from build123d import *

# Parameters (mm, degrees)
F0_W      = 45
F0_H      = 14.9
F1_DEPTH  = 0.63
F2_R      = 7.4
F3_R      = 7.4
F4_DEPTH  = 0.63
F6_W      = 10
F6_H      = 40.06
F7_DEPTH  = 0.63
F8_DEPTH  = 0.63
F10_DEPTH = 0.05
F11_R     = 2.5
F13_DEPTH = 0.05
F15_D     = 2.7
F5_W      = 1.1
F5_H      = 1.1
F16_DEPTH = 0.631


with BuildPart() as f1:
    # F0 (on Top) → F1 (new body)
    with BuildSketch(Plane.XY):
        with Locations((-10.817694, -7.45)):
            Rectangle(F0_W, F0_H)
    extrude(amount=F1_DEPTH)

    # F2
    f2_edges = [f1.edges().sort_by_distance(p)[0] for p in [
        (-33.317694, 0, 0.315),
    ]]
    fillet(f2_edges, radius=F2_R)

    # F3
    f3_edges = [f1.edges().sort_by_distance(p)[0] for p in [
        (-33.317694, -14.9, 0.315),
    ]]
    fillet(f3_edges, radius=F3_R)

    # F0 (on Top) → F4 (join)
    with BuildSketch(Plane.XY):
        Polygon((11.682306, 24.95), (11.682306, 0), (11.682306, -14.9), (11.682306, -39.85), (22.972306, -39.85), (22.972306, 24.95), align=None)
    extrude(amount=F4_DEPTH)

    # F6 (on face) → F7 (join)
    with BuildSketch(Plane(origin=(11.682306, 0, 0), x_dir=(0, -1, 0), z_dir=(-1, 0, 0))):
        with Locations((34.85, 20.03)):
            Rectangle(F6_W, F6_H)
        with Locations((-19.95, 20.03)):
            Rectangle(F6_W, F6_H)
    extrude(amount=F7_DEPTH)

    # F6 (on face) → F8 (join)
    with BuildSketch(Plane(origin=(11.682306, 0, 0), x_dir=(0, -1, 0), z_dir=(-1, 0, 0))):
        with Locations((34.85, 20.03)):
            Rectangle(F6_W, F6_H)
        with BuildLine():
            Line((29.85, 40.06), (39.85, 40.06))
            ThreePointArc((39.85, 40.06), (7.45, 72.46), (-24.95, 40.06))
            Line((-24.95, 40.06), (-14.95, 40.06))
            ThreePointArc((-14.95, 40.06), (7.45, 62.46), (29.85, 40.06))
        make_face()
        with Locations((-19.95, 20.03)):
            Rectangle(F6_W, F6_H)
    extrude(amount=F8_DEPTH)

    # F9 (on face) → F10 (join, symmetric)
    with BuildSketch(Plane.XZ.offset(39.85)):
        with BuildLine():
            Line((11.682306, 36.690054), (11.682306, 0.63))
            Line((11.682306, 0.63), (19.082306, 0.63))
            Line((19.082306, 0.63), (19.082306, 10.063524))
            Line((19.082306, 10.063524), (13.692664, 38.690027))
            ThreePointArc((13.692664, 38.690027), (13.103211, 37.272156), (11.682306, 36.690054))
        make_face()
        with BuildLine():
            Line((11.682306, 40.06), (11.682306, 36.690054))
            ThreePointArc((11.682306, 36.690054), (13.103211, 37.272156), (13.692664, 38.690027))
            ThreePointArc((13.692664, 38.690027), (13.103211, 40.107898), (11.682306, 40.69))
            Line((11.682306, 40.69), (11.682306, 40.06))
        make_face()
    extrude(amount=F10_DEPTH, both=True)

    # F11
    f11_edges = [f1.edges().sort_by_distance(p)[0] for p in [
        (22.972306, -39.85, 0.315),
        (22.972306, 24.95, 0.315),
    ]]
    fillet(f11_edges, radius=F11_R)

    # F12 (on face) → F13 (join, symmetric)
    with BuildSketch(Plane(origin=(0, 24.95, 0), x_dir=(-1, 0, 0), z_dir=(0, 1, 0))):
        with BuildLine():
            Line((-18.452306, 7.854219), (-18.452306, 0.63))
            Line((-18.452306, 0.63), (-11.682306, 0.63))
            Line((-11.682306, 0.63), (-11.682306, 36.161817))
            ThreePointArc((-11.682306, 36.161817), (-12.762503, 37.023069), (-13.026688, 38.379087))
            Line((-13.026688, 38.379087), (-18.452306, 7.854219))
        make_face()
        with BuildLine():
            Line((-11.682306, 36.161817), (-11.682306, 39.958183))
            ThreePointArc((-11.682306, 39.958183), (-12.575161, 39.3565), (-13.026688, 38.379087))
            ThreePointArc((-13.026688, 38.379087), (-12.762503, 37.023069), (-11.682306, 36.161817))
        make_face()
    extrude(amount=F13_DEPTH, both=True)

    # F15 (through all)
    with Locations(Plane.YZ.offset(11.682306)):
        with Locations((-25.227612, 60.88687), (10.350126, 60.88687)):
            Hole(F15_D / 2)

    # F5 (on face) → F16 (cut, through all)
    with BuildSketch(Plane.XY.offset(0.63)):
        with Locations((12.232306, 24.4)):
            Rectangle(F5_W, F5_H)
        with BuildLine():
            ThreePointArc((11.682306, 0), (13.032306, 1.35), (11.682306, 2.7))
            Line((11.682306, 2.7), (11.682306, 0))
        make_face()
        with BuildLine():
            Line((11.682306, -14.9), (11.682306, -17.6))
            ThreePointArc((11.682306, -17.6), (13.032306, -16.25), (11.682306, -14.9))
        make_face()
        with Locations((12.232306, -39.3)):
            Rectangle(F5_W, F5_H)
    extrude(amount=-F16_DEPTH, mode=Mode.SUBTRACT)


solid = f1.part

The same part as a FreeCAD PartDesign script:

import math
import FreeCAD as App
import Part
import Sketcher

V = App.Vector


def edges_at(feature, points):
    """Names of the edges that pass closest to the given points."""
    edges = feature.Shape.Edges
    near = lambda p: min(range(len(edges)), key=lambda i: edges[i].distToShape(Part.Vertex(*p))[0])
    return sorted({f"Edge{near(p) + 1}" for p in points})

doc = App.newDocument("Part")
body = doc.addObject("PartDesign::Body", "Body")

sketch1 = body.newObject("Sketcher::SketchObject", "Sketch")
sketch1.AttachmentSupport = (doc.getObject("XY_Plane"), [""])
sketch1.MapMode = "FlatFace"
sketch1.addGeometry(Part.LineSegment(V(-33, 0, 0), V(-33, -15, 0)), False)
sketch1.addGeometry(Part.LineSegment(V(-33, -15, 0), V(12, -15, 0)), False)
sketch1.addGeometry(Part.LineSegment(V(12, -15, 0), V(12, 0, 0)), False)
sketch1.addGeometry(Part.LineSegment(V(12, 0, 0), V(-33, 0, 0)), False)
sketch1.addConstraint(Sketcher.Constraint("Coincident", 0, 2, 1, 1))
sketch1.addConstraint(Sketcher.Constraint("Coincident", 1, 2, 2, 1))
sketch1.addConstraint(Sketcher.Constraint("Coincident", 2, 2, 3, 1))
sketch1.addConstraint(Sketcher.Constraint("Coincident", 3, 2, 0, 1))
sketch1.addConstraint(Sketcher.Constraint("Vertical", 0))
sketch1.addConstraint(Sketcher.Constraint("Horizontal", 1))
sketch1.addConstraint(Sketcher.Constraint("Vertical", 2))
sketch1.addConstraint(Sketcher.Constraint("Horizontal", 3))
sketch1.addConstraint(Sketcher.Constraint("PointOnObject", 2, 2, -1))
sketch1.addConstraint(Sketcher.Constraint("DistanceX", 1, 1, 1, 2, 45.0))
sketch1.addConstraint(Sketcher.Constraint("DistanceY", 0, 2, 0, 1, 14.9))
sketch1.addConstraint(Sketcher.Constraint("DistanceX", 0, 2, -1, 1, 33.317694))
pad1 = body.newObject("PartDesign::Pad", "Pad")
pad1.Profile = sketch1
pad1.Length = 0.63
doc.recompute()

fillet = body.newObject("PartDesign::Fillet", "Fillet")
fillet.Base = (pad1, edges_at(pad1, [(-33.318, 0, 0.315)]))
fillet.Radius = 7.4
doc.recompute()

fillet2 = body.newObject("PartDesign::Fillet", "Fillet001")
fillet2.Base = (fillet, edges_at(fillet, [(-33.318, -14.9, 0.315)]))
fillet2.Radius = 7.4

sketch2 = body.newObject("Sketcher::SketchObject", "Sketch001")
sketch2.AttachmentSupport = (doc.getObject("XY_Plane"), [""])
sketch2.MapMode = "FlatFace"
sketch2.addGeometry(Part.LineSegment(V(12, 25, 0), V(12, -40, 0)), False)
sketch2.addGeometry(Part.LineSegment(V(12, -40, 0), V(23, -40, 0)), False)
sketch2.addGeometry(Part.LineSegment(V(23, -40, 0), V(23, 25, 0)), False)
sketch2.addGeometry(Part.LineSegment(V(23, 25, 0), V(12, 25, 0)), False)
sketch2.addConstraint(Sketcher.Constraint("Coincident", 0, 2, 1, 1))
sketch2.addConstraint(Sketcher.Constraint("Coincident", 1, 2, 2, 1))
sketch2.addConstraint(Sketcher.Constraint("Coincident", 2, 2, 3, 1))
sketch2.addConstraint(Sketcher.Constraint("Coincident", 3, 2, 0, 1))
sketch2.addConstraint(Sketcher.Constraint("Vertical", 0))
sketch2.addConstraint(Sketcher.Constraint("Horizontal", 1))
sketch2.addConstraint(Sketcher.Constraint("Vertical", 2))
sketch2.addConstraint(Sketcher.Constraint("Horizontal", 3))
sketch2.addConstraint(Sketcher.Constraint("DistanceY", 0, 2, 0, 1, 64.8))
sketch2.addConstraint(Sketcher.Constraint("DistanceX", 1, 1, 1, 2, 11.29))
sketch2.addConstraint(Sketcher.Constraint("DistanceY", 0, 2, -1, 1, 39.85))
sketch2.addConstraint(Sketcher.Constraint("DistanceX", -1, 1, 0, 2, 11.682306))
pad2 = body.newObject("PartDesign::Pad", "Pad001")
pad2.Profile = sketch2
pad2.Length = 0.63

sketch3 = body.newObject("Sketcher::SketchObject", "Sketch002")
sketch3.AttachmentSupport = (doc.getObject("YZ_Plane"), [""])
sketch3.MapMode = "FlatFace"
sketch3.AttachmentOffset = App.Placement(V(0, 0, 11.682306), App.Rotation())
sketch3.addGeometry(Part.LineSegment(V(-30, 40, 0), V(-30, 0, 0)), False)
sketch3.addGeometry(Part.LineSegment(V(-30, 0, 0), V(-40, 0, 0)), False)
sketch3.addGeometry(Part.LineSegment(V(-40, 0, 0), V(-40, 40, 0)), False)
sketch3.addGeometry(Part.LineSegment(V(-40, 40, 0), V(-30, 40, 0)), False)
sketch3.addGeometry(Part.LineSegment(V(25, 40, 0), V(25, 0, 0)), False)
sketch3.addGeometry(Part.LineSegment(V(25, 0, 0), V(15, 0, 0)), False)
sketch3.addGeometry(Part.LineSegment(V(15, 0, 0), V(15, 40, 0)), False)
sketch3.addGeometry(Part.LineSegment(V(15, 40, 0), V(25, 40, 0)), False)
sketch3.addConstraint(Sketcher.Constraint("Coincident", 0, 2, 1, 1))
sketch3.addConstraint(Sketcher.Constraint("Coincident", 1, 2, 2, 1))
sketch3.addConstraint(Sketcher.Constraint("Coincident", 2, 2, 3, 1))
sketch3.addConstraint(Sketcher.Constraint("Coincident", 3, 2, 0, 1))
sketch3.addConstraint(Sketcher.Constraint("Coincident", 4, 2, 5, 1))
sketch3.addConstraint(Sketcher.Constraint("Coincident", 5, 2, 6, 1))
sketch3.addConstraint(Sketcher.Constraint("Coincident", 6, 2, 7, 1))
sketch3.addConstraint(Sketcher.Constraint("Coincident", 7, 2, 4, 1))
sketch3.addConstraint(Sketcher.Constraint("Vertical", 0))
sketch3.addConstraint(Sketcher.Constraint("Horizontal", 1))
sketch3.addConstraint(Sketcher.Constraint("Vertical", 2))
sketch3.addConstraint(Sketcher.Constraint("Horizontal", 3))
sketch3.addConstraint(Sketcher.Constraint("Vertical", 4))
sketch3.addConstraint(Sketcher.Constraint("Horizontal", 5))
sketch3.addConstraint(Sketcher.Constraint("Vertical", 6))
sketch3.addConstraint(Sketcher.Constraint("Horizontal", 7))
sketch3.addConstraint(Sketcher.Constraint("PointOnObject", 0, 2, -1))
sketch3.addConstraint(Sketcher.Constraint("PointOnObject", 4, 2, -1))
sketch3.addConstraint(Sketcher.Constraint("Horizontal", 3, 2, 6, 2))
sketch3.addConstraint(Sketcher.Constraint("Equal", 3, 5))
sketch3.addConstraint(Sketcher.Constraint("DistanceX", 1, 2, 1, 1, 10.0))
sketch3.addConstraint(Sketcher.Constraint("DistanceY", 0, 2, 0, 1, 40.06))
sketch3.addConstraint(Sketcher.Constraint("DistanceX", 0, 2, 4, 2, 54.8))
sketch3.addConstraint(Sketcher.Constraint("DistanceX", 0, 2, -1, 1, 29.85))
pad3 = body.newObject("PartDesign::Pad", "Pad002")
pad3.Profile = sketch3
pad3.Length = 0.63
pad3.Reversed = True

sketch4 = body.newObject("Sketcher::SketchObject", "Sketch003")
sketch4.AttachmentSupport = (doc.getObject("YZ_Plane"), [""])
sketch4.MapMode = "FlatFace"
sketch4.AttachmentOffset = App.Placement(V(0, 0, 11.682306), App.Rotation())
sketch4.addGeometry(Part.LineSegment(V(-30, 40, 0), V(-30, 0, 0)), False)
sketch4.addGeometry(Part.LineSegment(V(-30, 0, 0), V(-40, 0, 0)), False)
sketch4.addGeometry(Part.LineSegment(V(-40, 0, 0), V(-40, 40, 0)), False)
sketch4.addGeometry(Part.ArcOfCircle(Part.Circle(V(-7, 40, 0), V(0, 0, 1), 32), math.radians(0), math.radians(180)), False)
sketch4.addGeometry(Part.LineSegment(V(25, 40, 0), V(25, 0, 0)), False)
sketch4.addGeometry(Part.LineSegment(V(25, 0, 0), V(15, 0, 0)), False)
sketch4.addGeometry(Part.LineSegment(V(15, 0, 0), V(15, 40, 0)), False)
sketch4.addGeometry(Part.ArcOfCircle(Part.Circle(V(-7, 40, 0), V(0, 0, 1), 22), math.radians(0), math.radians(180)), False)
sketch4.addConstraint(Sketcher.Constraint("Coincident", 0, 2, 1, 1))
sketch4.addConstraint(Sketcher.Constraint("Coincident", 1, 2, 2, 1))
sketch4.addConstraint(Sketcher.Constraint("Tangent", 2, 2, 3, 2))
sketch4.addConstraint(Sketcher.Constraint("Tangent", 3, 1, 4, 1))
sketch4.addConstraint(Sketcher.Constraint("Coincident", 4, 2, 5, 1))
sketch4.addConstraint(Sketcher.Constraint("Coincident", 5, 2, 6, 1))
sketch4.addConstraint(Sketcher.Constraint("Tangent", 6, 2, 7, 1))
sketch4.addConstraint(Sketcher.Constraint("Tangent", 7, 2, 0, 1))
sketch4.addConstraint(Sketcher.Constraint("Vertical", 0))
sketch4.addConstraint(Sketcher.Constraint("Horizontal", 1))
sketch4.addConstraint(Sketcher.Constraint("Vertical", 2))
sketch4.addConstraint(Sketcher.Constraint("Vertical", 4))
sketch4.addConstraint(Sketcher.Constraint("Horizontal", 5))
sketch4.addConstraint(Sketcher.Constraint("Vertical", 6))
sketch4.addConstraint(Sketcher.Constraint("Coincident", 7, 3, 3, 3))
sketch4.addConstraint(Sketcher.Constraint("PointOnObject", 0, 2, -1))
sketch4.addConstraint(Sketcher.Constraint("PointOnObject", 4, 2, -1))
sketch4.addConstraint(Sketcher.Constraint("Radius", 3, 32.4))
sketch4.addConstraint(Sketcher.Constraint("Radius", 7, 22.4))
sketch4.addConstraint(Sketcher.Constraint("DistanceY", 0, 2, 0, 1, 40.06))
sketch4.addConstraint(Sketcher.Constraint("DistanceX", 3, 3, -1, 1, 7.45))
pad4 = body.newObject("PartDesign::Pad", "Pad003")
pad4.Profile = sketch4
pad4.Length = 0.63
pad4.Reversed = True

sketch5 = body.newObject("Sketcher::SketchObject", "Sketch004")
sketch5.AttachmentSupport = (doc.getObject("XZ_Plane"), [""])
sketch5.MapMode = "FlatFace"
sketch5.AttachmentOffset = App.Placement(V(0, 0, 39.85), App.Rotation())
sketch5.addGeometry(Part.LineSegment(V(11.7, 0.6, 0), V(19.1, 0.6, 0)), False)
sketch5.addGeometry(Part.LineSegment(V(19.1, 0.6, 0), V(19.1, 10.1, 0)), False)
sketch5.addGeometry(Part.LineSegment(V(19.1, 10.1, 0), V(13.7, 38.7, 0)), False)
sketch5.addGeometry(Part.ArcOfCircle(Part.Circle(V(11.7, 38.7, 0), V(0, 0, 1), 2), math.radians(0), math.radians(90)), False)
sketch5.addGeometry(Part.LineSegment(V(11.7, 40.7, 0), V(11.7, 0.6, 0)), False)
sketch5.addConstraint(Sketcher.Constraint("Coincident", 0, 2, 1, 1))
sketch5.addConstraint(Sketcher.Constraint("Coincident", 1, 2, 2, 1))
sketch5.addConstraint(Sketcher.Constraint("Coincident", 2, 2, 3, 1))
sketch5.addConstraint(Sketcher.Constraint("Coincident", 3, 2, 4, 1))
sketch5.addConstraint(Sketcher.Constraint("Coincident", 4, 2, 0, 1))
sketch5.addConstraint(Sketcher.Constraint("Horizontal", 0))
sketch5.addConstraint(Sketcher.Constraint("Vertical", 1))
sketch5.addConstraint(Sketcher.Constraint("Vertical", 4))
sketch5.addConstraint(Sketcher.Constraint("Horizontal", 3, 3, 2, 2))
sketch5.addConstraint(Sketcher.Constraint("Radius", 3, 1.999999))
sketch5.addConstraint(Sketcher.Constraint("DistanceX", 0, 1, 0, 2, 7.4))
sketch5.addConstraint(Sketcher.Constraint("DistanceY", 4, 2, 4, 1, 40.06))
sketch5.addConstraint(Sketcher.Constraint("DistanceY", -1, 1, 0, 2, 0.63))
sketch5.addConstraint(Sketcher.Constraint("Distance", 2, 29.129451))
sketch5.addConstraint(Sketcher.Constraint("DistanceY", 1, 1, 1, 2, 9.433524))
sketch5.addConstraint(Sketcher.Constraint("DistanceX", -1, 1, 3, 3, 11.692665))
pad5 = body.newObject("PartDesign::Pad", "Pad004")
pad5.Profile = sketch5
pad5.Length = 0.1
pad5.Midplane = True
doc.recompute()

fillet3 = body.newObject("PartDesign::Fillet", "Fillet002")
fillet3.Base = (pad5, edges_at(pad5, [(22.972, -39.85, 0.315), (22.972, 24.95, 0.315)]))
fillet3.Radius = 2.5

sketch6 = body.newObject("Sketcher::SketchObject", "Sketch005")
sketch6.AttachmentSupport = (doc.getObject("XZ_Plane"), [""])
sketch6.MapMode = "FlatFace"
sketch6.AttachmentOffset = App.Placement(V(0, 0, -24.95), App.Rotation())
sketch6.addGeometry(Part.LineSegment(V(18.5, 7.9, 0), V(18.5, 0.6, 0)), False)
sketch6.addGeometry(Part.LineSegment(V(18.5, 0.6, 0), V(11.7, 0.6, 0)), False)
sketch6.addGeometry(Part.LineSegment(V(11.7, 0.6, 0), V(11.7, 40, 0)), False)
sketch6.addGeometry(Part.ArcOfCircle(Part.Circle(V(11.1, 38.1, 0), V(0, 0, 1), 2), math.radians(9), math.radians(72)), False)
sketch6.addGeometry(Part.LineSegment(V(13, 38.4, 0), V(18.5, 7.9, 0)), False)
sketch6.addConstraint(Sketcher.Constraint("Coincident", 0, 2, 1, 1))
sketch6.addConstraint(Sketcher.Constraint("Coincident", 1, 2, 2, 1))
sketch6.addConstraint(Sketcher.Constraint("Coincident", 2, 2, 3, 2))
sketch6.addConstraint(Sketcher.Constraint("Coincident", 3, 1, 4, 1))
sketch6.addConstraint(Sketcher.Constraint("Coincident", 4, 2, 0, 1))
sketch6.addConstraint(Sketcher.Constraint("Vertical", 0))
sketch6.addConstraint(Sketcher.Constraint("Horizontal", 1))
sketch6.addConstraint(Sketcher.Constraint("Vertical", 2))
sketch6.addConstraint(Sketcher.Constraint("Radius", 3, 2.0))
sketch6.addConstraint(Sketcher.Constraint("DistanceX", 1, 2, 1, 1, 6.77))
sketch6.addConstraint(Sketcher.Constraint("DistanceX", 3, 3, 0, 2, 7.4))
sketch6.addConstraint(Sketcher.Constraint("DistanceY", -1, 1, 3, 3, 38.059999))
sketch6.addConstraint(Sketcher.Constraint("DistanceY", -1, 1, 0, 2, 0.63))
sketch6.addConstraint(Sketcher.Constraint("DistanceY", 0, 2, 0, 1, 7.224219))
sketch6.addConstraint(Sketcher.Constraint("DistanceX", -1, 1, 3, 1, 13.026688))
sketch6.addConstraint(Sketcher.Constraint("DistanceX", 3, 3, 3, 1, 1.974382))
pad6 = body.newObject("PartDesign::Pad", "Pad005")
pad6.Profile = sketch6
pad6.Length = 0.1
pad6.Midplane = True

sketch7 = body.newObject("Sketcher::SketchObject", "Sketch006")
sketch7.AttachmentSupport = (doc.getObject("YZ_Plane"), [""])
sketch7.MapMode = "FlatFace"
sketch7.AttachmentOffset = App.Placement(V(0, 0, 11.682306), App.Rotation())
sketch7.addGeometry(Part.Circle(V(-25.2, 60.9, 0), V(0, 0, 1), 1.4), False)
sketch7.addGeometry(Part.Circle(V(10.4, 60.9, 0), V(0, 0, 1), 1.4), False)
sketch7.addConstraint(Sketcher.Constraint("Equal", 0, 1))
sketch7.addConstraint(Sketcher.Constraint("Horizontal", 0, 3, 1, 3))
sketch7.addConstraint(Sketcher.Constraint("Diameter", 0, 2.7))
sketch7.addConstraint(Sketcher.Constraint("DistanceY", -1, 1, 0, 3, 60.88687))
sketch7.addConstraint(Sketcher.Constraint("DistanceX", 0, 3, -1, 1, 25.227612))
sketch7.addConstraint(Sketcher.Constraint("DistanceX", -1, 1, 1, 3, 10.350126))
doc.recompute()
hole = body.newObject("PartDesign::Hole", "Hole")
hole.Profile = sketch7
hole.ThreadType = "None"
hole.Diameter = 2.7
hole.DepthType = "ThroughAll"

sketch8 = body.newObject("Sketcher::SketchObject", "Sketch007")
sketch8.AttachmentSupport = (doc.getObject("XY_Plane"), [""])
sketch8.MapMode = "FlatFace"
sketch8.AttachmentOffset = App.Placement(V(0, 0, 0.63), App.Rotation())
sketch8.addGeometry(Part.LineSegment(V(11.7, 24.9, 0), V(11.7, 23.9, 0)), False)
sketch8.addGeometry(Part.LineSegment(V(11.7, 23.9, 0), V(12.8, 23.9, 0)), False)
sketch8.addGeometry(Part.LineSegment(V(12.8, 23.9, 0), V(12.8, 24.9, 0)), False)
sketch8.addGeometry(Part.LineSegment(V(12.8, 24.9, 0), V(11.7, 24.9, 0)), False)
sketch8.addGeometry(Part.ArcOfCircle(Part.Circle(V(11.7, 1.4, 0), V(0, 0, 1), 1.4), math.radians(-90), math.radians(90)), False)
sketch8.addGeometry(Part.LineSegment(V(11.7, 2.7, 0), V(11.7, 0, 0)), False)
sketch8.addGeometry(Part.LineSegment(V(11.7, -14.9, 0), V(11.7, -17.6, 0)), False)
sketch8.addGeometry(Part.ArcOfCircle(Part.Circle(V(11.7, -16.2, 0), V(0, 0, 1), 1.4), math.radians(-90), math.radians(90)), False)
sketch8.addGeometry(Part.LineSegment(V(11.7, -38.8, 0), V(11.7, -39.9, 0)), False)
sketch8.addGeometry(Part.LineSegment(V(11.7, -39.9, 0), V(12.8, -39.9, 0)), False)
sketch8.addGeometry(Part.LineSegment(V(12.8, -39.9, 0), V(12.8, -38.8, 0)), False)
sketch8.addGeometry(Part.LineSegment(V(12.8, -38.8, 0), V(11.7, -38.8, 0)), False)
sketch8.addConstraint(Sketcher.Constraint("Coincident", 0, 2, 1, 1))
sketch8.addConstraint(Sketcher.Constraint("Coincident", 1, 2, 2, 1))
sketch8.addConstraint(Sketcher.Constraint("Coincident", 2, 2, 3, 1))
sketch8.addConstraint(Sketcher.Constraint("Coincident", 3, 2, 0, 1))
sketch8.addConstraint(Sketcher.Constraint("Coincident", 4, 1, 5, 2))
sketch8.addConstraint(Sketcher.Constraint("Coincident", 5, 1, 4, 2))
sketch8.addConstraint(Sketcher.Constraint("Coincident", 6, 1, 7, 2))
sketch8.addConstraint(Sketcher.Constraint("Coincident", 7, 1, 6, 2))
sketch8.addConstraint(Sketcher.Constraint("Coincident", 8, 2, 9, 1))
sketch8.addConstraint(Sketcher.Constraint("Coincident", 9, 2, 10, 1))
sketch8.addConstraint(Sketcher.Constraint("Coincident", 10, 2, 11, 1))
sketch8.addConstraint(Sketcher.Constraint("Coincident", 11, 2, 8, 1))
sketch8.addConstraint(Sketcher.Constraint("Vertical", 0))
sketch8.addConstraint(Sketcher.Constraint("Horizontal", 1))
sketch8.addConstraint(Sketcher.Constraint("Vertical", 2))
sketch8.addConstraint(Sketcher.Constraint("Horizontal", 3))
sketch8.addConstraint(Sketcher.Constraint("Vertical", 5))
sketch8.addConstraint(Sketcher.Constraint("Vertical", 6))
sketch8.addConstraint(Sketcher.Constraint("Vertical", 8))
sketch8.addConstraint(Sketcher.Constraint("Horizontal", 9))
sketch8.addConstraint(Sketcher.Constraint("Vertical", 10))
sketch8.addConstraint(Sketcher.Constraint("Horizontal", 11))
sketch8.addConstraint(Sketcher.Constraint("Equal", 4, 7))
sketch8.addConstraint(Sketcher.Constraint("PointOnObject", 4, 1, -1))
sketch8.addConstraint(Sketcher.Constraint("Vertical", 4, 3, 7, 3))
sketch8.addConstraint(Sketcher.Constraint("Vertical", 7, 3, 0, 2))
sketch8.addConstraint(Sketcher.Constraint("Vertical", 3, 2, 4, 1))
sketch8.addConstraint(Sketcher.Constraint("Vertical", 5, 1, 6, 1))
sketch8.addConstraint(Sketcher.Constraint("Vertical", 7, 1, 8, 2))
sketch8.addConstraint(Sketcher.Constraint("Vertical", 2, 2, 9, 2))
sketch8.addConstraint(Sketcher.Constraint("Equal", 11, 0))
sketch8.addConstraint(Sketcher.Constraint("Equal", 2, 8))
sketch8.addConstraint(Sketcher.Constraint("Radius", 4, 1.35))
sketch8.addConstraint(Sketcher.Constraint("DistanceX", 1, 1, 1, 2, 1.1))
sketch8.addConstraint(Sketcher.Constraint("DistanceY", 6, 1, -1, 1, 14.9))
sketch8.addConstraint(Sketcher.Constraint("DistanceY", 4, 3, 0, 2, 22.5))
sketch8.addConstraint(Sketcher.Constraint("DistanceY", 8, 2, 7, 3, 23.6))
sketch8.addConstraint(Sketcher.Constraint("DistanceX", -1, 1, 4, 3, 11.682306))
pocket1 = body.newObject("PartDesign::Pocket", "Pocket")
pocket1.Profile = sketch8
pocket1.Type = "ThroughAll"

doc.recompute()
